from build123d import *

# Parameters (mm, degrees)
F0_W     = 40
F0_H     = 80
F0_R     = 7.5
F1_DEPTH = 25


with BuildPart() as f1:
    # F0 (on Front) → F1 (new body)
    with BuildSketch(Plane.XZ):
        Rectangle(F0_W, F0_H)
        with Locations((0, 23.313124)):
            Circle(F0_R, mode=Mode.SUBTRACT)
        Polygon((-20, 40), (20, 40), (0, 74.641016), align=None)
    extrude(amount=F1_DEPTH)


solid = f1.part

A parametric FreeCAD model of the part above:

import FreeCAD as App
import Part
import Sketcher
Q = App.Units.Quantity

doc = App.newDocument("Part")
body = doc.addObject("PartDesign::Body", "Body")

# Sketch on XZ plane
sketch1 = doc.addObject("Sketcher::SketchObject", "Sketch")
body.addObject(sketch1)
sketch1.AttachmentSupport = (doc.XZ_Plane, [""])
sketch1.MapMode = "FlatFace"
sketch1.addGeometry([
    Part.LineSegment(App.Vector(-20, 40, 0), App.Vector(-20, -40, 0)),  # 0
    Part.LineSegment(App.Vector(-20, -40, 0), App.Vector(20, -40, 0)),  # 1
    Part.LineSegment(App.Vector(20, -40, 0), App.Vector(20, 40, 0)),  # 2
    Part.LineSegment(App.Vector(20, 40, 0), App.Vector(0, 75, 0)),  # 3
    Part.LineSegment(App.Vector(0, 75, 0), App.Vector(-20, 40, 0)),  # 4
    Part.Circle(App.Vector(0, 23, 0), App.Vector(0, 0, 1), 8),  # 5
], False)
sketch1.addConstraint([
    Sketcher.Constraint("Coincident", 0, 2, 1, 1),
    Sketcher.Constraint("Coincident", 1, 2, 2, 1),
    Sketcher.Constraint("Coincident", 2, 2, 3, 1),
    Sketcher.Constraint("Coincident", 3, 2, 4, 1),
    Sketcher.Constraint("Coincident", 4, 2, 0, 1),
    Sketcher.Constraint("Vertical", 0),
    Sketcher.Constraint("Horizontal", 1),
    Sketcher.Constraint("Vertical", 2),
    Sketcher.Constraint("Symmetric", 0, 2, 2, 2, -1, 1),
    Sketcher.Constraint("PointOnObject", 5, 3, -2),
    Sketcher.Constraint("PointOnObject", 3, 2, -2),
    Sketcher.Constraint("Horizontal", 2, 2, 4, 2),
    Sketcher.Constraint("Diameter", 5, Q("15 mm")),
    Sketcher.Constraint("DistanceX", 1, 1, 1, 2, Q("40 mm")),
    Sketcher.Constraint("DistanceY", 0, 2, 0, 1, Q("80 mm")),
    Sketcher.Constraint("Angle", 3, Q("120 deg")),
    Sketcher.Constraint("DistanceY", 5, 3, 3, 2, Q("51.327892 mm")),
])
pad1 = doc.addObject("PartDesign::Pad", "Pad")
body.addObject(pad1)
pad1.Profile = sketch1
pad1.Length = 25

doc.recompute()
